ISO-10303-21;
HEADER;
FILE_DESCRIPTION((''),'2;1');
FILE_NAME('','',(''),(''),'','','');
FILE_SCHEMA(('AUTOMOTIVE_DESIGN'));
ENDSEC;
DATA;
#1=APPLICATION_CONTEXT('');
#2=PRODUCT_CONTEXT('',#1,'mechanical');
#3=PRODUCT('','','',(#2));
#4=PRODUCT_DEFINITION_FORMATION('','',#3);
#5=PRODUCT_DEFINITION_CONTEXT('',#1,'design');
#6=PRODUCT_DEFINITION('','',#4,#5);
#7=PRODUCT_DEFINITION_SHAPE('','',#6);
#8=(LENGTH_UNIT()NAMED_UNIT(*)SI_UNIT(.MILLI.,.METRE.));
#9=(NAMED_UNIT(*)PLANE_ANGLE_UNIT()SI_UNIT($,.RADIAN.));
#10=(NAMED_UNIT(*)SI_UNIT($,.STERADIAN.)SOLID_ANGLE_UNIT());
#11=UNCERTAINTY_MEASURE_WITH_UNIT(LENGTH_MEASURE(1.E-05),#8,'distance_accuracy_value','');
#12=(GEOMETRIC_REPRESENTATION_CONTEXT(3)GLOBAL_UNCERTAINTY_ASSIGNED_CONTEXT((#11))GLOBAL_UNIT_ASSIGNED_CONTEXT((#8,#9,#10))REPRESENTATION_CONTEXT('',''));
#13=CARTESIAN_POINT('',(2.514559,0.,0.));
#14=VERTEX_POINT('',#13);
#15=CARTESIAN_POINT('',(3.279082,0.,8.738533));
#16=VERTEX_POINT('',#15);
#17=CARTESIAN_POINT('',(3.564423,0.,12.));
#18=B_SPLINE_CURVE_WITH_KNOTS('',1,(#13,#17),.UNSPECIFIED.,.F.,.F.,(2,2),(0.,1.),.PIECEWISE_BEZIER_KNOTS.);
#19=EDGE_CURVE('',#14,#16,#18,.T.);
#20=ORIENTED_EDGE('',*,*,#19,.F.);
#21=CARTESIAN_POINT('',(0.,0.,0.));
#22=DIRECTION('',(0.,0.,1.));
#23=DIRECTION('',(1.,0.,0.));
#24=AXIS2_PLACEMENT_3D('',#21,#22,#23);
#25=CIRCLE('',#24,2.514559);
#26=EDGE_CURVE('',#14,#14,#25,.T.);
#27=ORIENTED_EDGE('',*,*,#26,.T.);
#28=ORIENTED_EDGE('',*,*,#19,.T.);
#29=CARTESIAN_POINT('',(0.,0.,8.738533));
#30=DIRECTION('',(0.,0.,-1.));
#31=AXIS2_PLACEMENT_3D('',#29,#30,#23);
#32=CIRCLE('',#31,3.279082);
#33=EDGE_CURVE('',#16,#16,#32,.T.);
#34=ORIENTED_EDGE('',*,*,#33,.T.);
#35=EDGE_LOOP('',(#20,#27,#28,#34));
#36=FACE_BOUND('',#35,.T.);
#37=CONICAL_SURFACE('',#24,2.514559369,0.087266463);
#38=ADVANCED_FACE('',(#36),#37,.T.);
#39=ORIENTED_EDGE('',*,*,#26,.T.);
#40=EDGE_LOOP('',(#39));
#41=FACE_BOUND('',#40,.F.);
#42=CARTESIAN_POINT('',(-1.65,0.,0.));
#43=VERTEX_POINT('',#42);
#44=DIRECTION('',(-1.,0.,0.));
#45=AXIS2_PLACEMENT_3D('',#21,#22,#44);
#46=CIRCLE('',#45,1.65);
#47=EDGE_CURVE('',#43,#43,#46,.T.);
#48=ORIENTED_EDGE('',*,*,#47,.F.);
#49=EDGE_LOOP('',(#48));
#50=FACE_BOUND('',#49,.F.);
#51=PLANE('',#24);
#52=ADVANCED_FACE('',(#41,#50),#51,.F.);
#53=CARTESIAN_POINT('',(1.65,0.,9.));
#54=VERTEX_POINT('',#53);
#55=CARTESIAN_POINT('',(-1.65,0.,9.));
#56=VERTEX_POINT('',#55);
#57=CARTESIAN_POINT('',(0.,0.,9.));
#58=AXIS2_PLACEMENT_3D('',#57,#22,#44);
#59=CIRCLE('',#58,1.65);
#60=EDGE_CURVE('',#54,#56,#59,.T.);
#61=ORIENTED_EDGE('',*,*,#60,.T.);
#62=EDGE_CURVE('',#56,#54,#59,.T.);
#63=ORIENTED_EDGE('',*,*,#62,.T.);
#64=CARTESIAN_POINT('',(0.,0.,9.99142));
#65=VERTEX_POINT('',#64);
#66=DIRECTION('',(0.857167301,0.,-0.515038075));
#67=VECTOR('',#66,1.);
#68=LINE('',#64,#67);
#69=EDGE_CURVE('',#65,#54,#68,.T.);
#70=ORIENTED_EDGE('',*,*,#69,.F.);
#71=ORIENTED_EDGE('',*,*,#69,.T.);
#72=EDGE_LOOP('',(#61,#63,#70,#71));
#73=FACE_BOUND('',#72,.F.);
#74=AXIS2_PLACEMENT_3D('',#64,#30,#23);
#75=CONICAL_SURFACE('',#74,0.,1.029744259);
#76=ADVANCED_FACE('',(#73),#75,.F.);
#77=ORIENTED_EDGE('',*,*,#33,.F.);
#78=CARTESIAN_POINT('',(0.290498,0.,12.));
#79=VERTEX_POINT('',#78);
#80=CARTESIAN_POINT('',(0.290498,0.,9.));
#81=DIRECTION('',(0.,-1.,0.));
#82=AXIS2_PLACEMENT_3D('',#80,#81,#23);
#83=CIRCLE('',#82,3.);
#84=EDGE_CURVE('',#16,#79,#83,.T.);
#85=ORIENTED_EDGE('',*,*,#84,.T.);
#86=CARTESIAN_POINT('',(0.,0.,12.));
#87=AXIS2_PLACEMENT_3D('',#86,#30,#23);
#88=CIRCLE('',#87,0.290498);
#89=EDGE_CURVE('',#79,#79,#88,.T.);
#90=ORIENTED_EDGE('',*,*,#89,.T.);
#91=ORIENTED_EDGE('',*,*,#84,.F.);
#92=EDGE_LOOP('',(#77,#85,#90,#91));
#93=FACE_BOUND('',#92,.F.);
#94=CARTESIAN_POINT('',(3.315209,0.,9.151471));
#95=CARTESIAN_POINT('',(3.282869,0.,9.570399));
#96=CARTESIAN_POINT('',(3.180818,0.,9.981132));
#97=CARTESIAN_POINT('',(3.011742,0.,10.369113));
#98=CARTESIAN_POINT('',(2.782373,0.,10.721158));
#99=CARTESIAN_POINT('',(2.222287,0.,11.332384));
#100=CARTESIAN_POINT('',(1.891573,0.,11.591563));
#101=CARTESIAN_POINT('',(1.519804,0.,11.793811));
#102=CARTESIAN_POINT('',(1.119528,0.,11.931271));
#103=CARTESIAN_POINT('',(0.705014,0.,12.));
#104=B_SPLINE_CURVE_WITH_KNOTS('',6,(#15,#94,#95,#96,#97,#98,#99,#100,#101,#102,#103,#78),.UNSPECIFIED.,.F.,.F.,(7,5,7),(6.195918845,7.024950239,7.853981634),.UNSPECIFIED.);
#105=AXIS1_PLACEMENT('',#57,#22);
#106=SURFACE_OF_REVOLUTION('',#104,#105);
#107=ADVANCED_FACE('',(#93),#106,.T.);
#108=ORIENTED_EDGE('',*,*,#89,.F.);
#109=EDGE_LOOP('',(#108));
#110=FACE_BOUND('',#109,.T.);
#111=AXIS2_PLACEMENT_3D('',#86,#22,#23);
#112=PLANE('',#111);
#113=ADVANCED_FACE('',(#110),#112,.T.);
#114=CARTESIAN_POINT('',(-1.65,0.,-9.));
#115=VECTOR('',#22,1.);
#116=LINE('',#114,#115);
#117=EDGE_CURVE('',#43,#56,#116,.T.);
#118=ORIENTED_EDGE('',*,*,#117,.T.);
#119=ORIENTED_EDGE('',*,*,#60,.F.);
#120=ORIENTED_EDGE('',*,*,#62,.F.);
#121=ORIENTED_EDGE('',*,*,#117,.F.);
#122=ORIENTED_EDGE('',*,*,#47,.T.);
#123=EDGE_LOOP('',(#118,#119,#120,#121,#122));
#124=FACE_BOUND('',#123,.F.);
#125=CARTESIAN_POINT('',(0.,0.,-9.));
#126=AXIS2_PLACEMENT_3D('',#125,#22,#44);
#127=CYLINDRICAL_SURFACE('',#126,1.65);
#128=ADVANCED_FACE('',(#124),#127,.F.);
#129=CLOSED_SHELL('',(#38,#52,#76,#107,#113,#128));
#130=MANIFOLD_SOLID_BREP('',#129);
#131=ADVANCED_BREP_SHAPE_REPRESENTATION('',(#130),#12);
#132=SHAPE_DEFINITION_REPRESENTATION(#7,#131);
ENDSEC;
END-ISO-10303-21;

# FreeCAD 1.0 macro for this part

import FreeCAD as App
import Part
import Sketcher

V = App.Vector
Q = App.Units.Quantity


def edges_at(feature, points):
    """Names of the edges that pass closest to the given points."""
    edges = feature.Shape.Edges
    near = lambda p: min(range(len(edges)), key=lambda i: edges[i].distToShape(Part.Vertex(*p))[0])
    return sorted({f"Edge{near(p) + 1}" for p in points})

doc = App.newDocument("Part")
params = doc.addObject("Spreadsheet::Sheet", "Params")
for row, (alias, value) in enumerate([
    ("pad1_length", "12 mm"),
    ("pad1_taper", "5 deg"),
    ("fillet_radius", "3 mm"),
    ("sketch2_diameter", "3.3 mm"),
    ("hole_diameter", "3.3 mm"),
    ("hole_depth", "9 mm"),
], start=1):
    params.set(f"A{row}", alias)
    params.set(f"B{row}", "=" + value)
    params.setAlias(f"B{row}", alias)

body = doc.addObject("PartDesign::Body", "Body")

# Sketch on XY plane
sketch1 = doc.addObject("Sketcher::SketchObject", "Sketch")
body.addObject(sketch1)
sketch1.AttachmentSupport = (doc.XY_Plane, [""])
sketch1.MapMode = "FlatFace"
sketch1.addGeometry(Part.Circle(V(0, 0, 0), V(0, 0, 1), 2.514559), False)
sketch1.addConstraint(Sketcher.Constraint("Coincident", 0, 3, -1, 1))
sketch1.addConstraint(Sketcher.Constraint("Diameter", 0, Q("5.029119 mm")))
pad1 = doc.addObject("PartDesign::Pad", "Pad")
body.addObject(pad1)
pad1.Profile = sketch1
pad1.setExpression("Length", "Params.pad1_length")
pad1.setExpression("TaperAngle", "Params.pad1_taper")
doc.recompute()

fillet = doc.addObject("PartDesign::Fillet", "Fillet")
body.addObject(fillet)
fillet.Base = (pad1, edges_at(pad1, [(-3.564, 0, 12)]))
fillet.setExpression("Radius", "Params.fillet_radius")

# Sketch on XY plane
sketch2 = doc.addObject("Sketcher::SketchObject", "Sketch001")
body.addObject(sketch2)
sketch2.AttachmentSupport = (doc.XY_Plane, [""])
sketch2.MapMode = "FlatFace"
sketch2.addGeometry(Part.Circle(V(0, 0, 0), V(0, 0, 1), 1.65), False)
sketch2.addConstraint(Sketcher.Constraint("Coincident", 0, 3, -1, 1))
sketch2.addConstraint(Sketcher.Constraint("Diameter", 0, Q("3.3 mm")))
sketch2.setExpression("Constraints[1]", "Params.sketch2_diameter")
doc.recompute()
hole = doc.addObject("PartDesign::Hole", "Hole")
body.addObject(hole)
hole.Profile = sketch2
hole.ThreadType = "None"
hole.setExpression("Diameter", "Params.hole_diameter")
hole.DepthType = "Dimension"
hole.setExpression("Depth", "Params.hole_depth")
hole.DrillPoint = "Angled"
hole.DrillPointAngle = 118
hole.Reversed = True

doc.recompute()
